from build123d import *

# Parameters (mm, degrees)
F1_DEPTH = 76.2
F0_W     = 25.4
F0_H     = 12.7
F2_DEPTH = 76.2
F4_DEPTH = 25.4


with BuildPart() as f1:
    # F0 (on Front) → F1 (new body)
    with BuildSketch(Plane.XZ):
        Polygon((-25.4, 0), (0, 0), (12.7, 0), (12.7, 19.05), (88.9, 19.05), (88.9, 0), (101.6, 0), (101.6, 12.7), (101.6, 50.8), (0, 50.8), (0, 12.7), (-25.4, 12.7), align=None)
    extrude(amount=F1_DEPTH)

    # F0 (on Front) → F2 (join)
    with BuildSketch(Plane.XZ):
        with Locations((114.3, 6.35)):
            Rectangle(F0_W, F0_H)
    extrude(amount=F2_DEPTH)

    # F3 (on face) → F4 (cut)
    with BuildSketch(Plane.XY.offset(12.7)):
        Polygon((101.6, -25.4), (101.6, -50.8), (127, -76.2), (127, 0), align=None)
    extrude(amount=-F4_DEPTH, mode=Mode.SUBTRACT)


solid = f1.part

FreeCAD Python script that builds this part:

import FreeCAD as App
import Part
import Sketcher
from FreeCAD import Vector
Q = App.Units.Quantity

doc = App.newDocument("Part")
params = doc.addObject("Spreadsheet::Sheet", "Params")
for row, (alias, value) in enumerate([
    ("sketch1_width", "3 in"),
    ("sketch1_width2", "4 in"),
    ("sketch1_width3", "1 in"),
    ("sketch1_width4", "1.5 in"),
    ("sketch1_height", "0.75 in"),
    ("pad1_length", "3 in"),
    ("sketch2_width", "1 in"),
    ("sketch2_height", "0.5 in"),
    ("pad2_length", "3 in"),
    ("sketch3_height", "1 in"),
    ("sketch3_height2", "3 in"),
    ("pocket1_length", "1 in"),
], start=1):
    params.set(f"A{row}", alias)
    params.set(f"B{row}", "=" + value)
    params.setAlias(f"B{row}", alias)

body = doc.addObject("PartDesign::Body", "Body")

sketch1 = body.newObject("Sketcher::SketchObject", "Sketch")
sketch1.AttachmentSupport = (doc.getObject("XZ_Plane"), [""])
sketch1.MapMode = "FlatFace"
sketch1.addGeometry([
    Part.LineSegment(Vector(-25, 0, 0), Vector(13, 0, 0)),
    Part.LineSegment(Vector(13, 0, 0), Vector(13, 19, 0)),
    Part.LineSegment(Vector(13, 19, 0), Vector(89, 19, 0)),
    Part.LineSegment(Vector(89, 19, 0), Vector(89, 0, 0)),
    Part.LineSegment(Vector(89, 0, 0), Vector(102, 0, 0)),
    Part.LineSegment(Vector(102, 0, 0), Vector(102, 51, 0)),
    Part.LineSegment(Vector(102, 51, 0), Vector(0, 51, 0)),
    Part.LineSegment(Vector(0, 51, 0), Vector(0, 13, 0)),
    Part.LineSegment(Vector(0, 13, 0), Vector(-25, 13, 0)),
    Part.LineSegment(Vector(-25, 13, 0), Vector(-25, 0, 0)),
], False)
sketch1.addConstraint([
    Sketcher.Constraint("Coincident", 0, 2, 1, 1),
    Sketcher.Constraint("Coincident", 1, 2, 2, 1),
    Sketcher.Constraint("Coincident", 2, 2, 3, 1),
    Sketcher.Constraint("Coincident", 3, 2, 4, 1),
    Sketcher.Constraint("Coincident", 4, 2, 5, 1),
    Sketcher.Constraint("Coincident", 5, 2, 6, 1),
    Sketcher.Constraint("Coincident", 6, 2, 7, 1),
    Sketcher.Constraint("Coincident", 7, 2, 8, 1),
    Sketcher.Constraint("Coincident", 8, 2, 9, 1),
    Sketcher.Constraint("Coincident", 9, 2, 0, 1),
    Sketcher.Constraint("Horizontal", 0),
    Sketcher.Constraint("Vertical", 1),
    Sketcher.Constraint("Horizontal", 2),
    Sketcher.Constraint("Vertical", 3),
    Sketcher.Constraint("Horizontal", 4),
    Sketcher.Constraint("Vertical", 5),
    Sketcher.Constraint("Horizontal", 6),
    Sketcher.Constraint("Vertical", 7),
    Sketcher.Constraint("Horizontal", 8),
    Sketcher.Constraint("Vertical", 9),
    Sketcher.Constraint("PointOnObject", 0, 2, -1),
    Sketcher.Constraint("PointOnObject", 3, 2, -1),
    Sketcher.Constraint("PointOnObject", 6, 2, -2),
    Sketcher.Constraint("Equal", 0, 7),
    Sketcher.Constraint("Equal", 4, 9),
    Sketcher.Constraint("DistanceX", 2, 1, 2, 2, Q("3 in")),
    Sketcher.Constraint("DistanceX", 6, 2, 6, 1, Q("4 in")),
    Sketcher.Constraint("DistanceX", 8, 2, 8, 1, Q("1 in")),
    Sketcher.Constraint("DistanceX", 0, 1, 0, 2, Q("1.5 in")),
    Sketcher.Constraint("DistanceY", 1, 1, 1, 2, Q("0.75 in")),
])
sketch1.setExpression("Constraints[25]", "Params.sketch1_width")
sketch1.setExpression("Constraints[26]", "Params.sketch1_width2")
sketch1.setExpression("Constraints[27]", "Params.sketch1_width3")
sketch1.setExpression("Constraints[28]", "Params.sketch1_width4")
sketch1.setExpression("Constraints[29]", "Params.sketch1_height")
pad1 = body.newObject("PartDesign::Pad", "Pad")
pad1.Profile = sketch1
pad1.setExpression("Length", "Params.pad1_length")

sketch2 = body.newObject("Sketcher::SketchObject", "Sketch001")
sketch2.AttachmentSupport = (doc.getObject("XZ_Plane"), [""])
sketch2.MapMode = "FlatFace"
sketch2.addGeometry([
    Part.LineSegment(Vector(102, 13, 0), Vector(102, 0, 0)),
    Part.LineSegment(Vector(102, 0, 0), Vector(127, 0, 0)),
    Part.LineSegment(Vector(127, 0, 0), Vector(127, 13, 0)),
    Part.LineSegment(Vector(127, 13, 0), Vector(102, 13, 0)),
], False)
sketch2.addConstraint([
    Sketcher.Constraint("Coincident", 0, 2, 1, 1),
    Sketcher.Constraint("Coincident", 1, 2, 2, 1),
    Sketcher.Constraint("Coincident", 2, 2, 3, 1),
    Sketcher.Constraint("Coincident", 3, 2, 0, 1),
    Sketcher.Constraint("Vertical", 0),
    Sketcher.Constraint("Horizontal", 1),
    Sketcher.Constraint("Vertical", 2),
    Sketcher.Constraint("Horizontal", 3),
    Sketcher.Constraint("PointOnObject", 0, 2, -1),
    Sketcher.Constraint("DistanceX", 1, 1, 1, 2, Q("1 in")),
    Sketcher.Constraint("DistanceY", 0, 2, 0, 1, Q("0.5 in")),
    Sketcher.Constraint("DistanceX", -1, 1, 0, 2, Q("4 in")),
])
sketch2.setExpression("Constraints[9]", "Params.sketch2_width")
sketch2.setExpression("Constraints[10]", "Params.sketch2_height")
pad2 = body.newObject("PartDesign::Pad", "Pad001")
pad2.Profile = sketch2
pad2.setExpression("Length", "Params.pad2_length")

sketch3 = body.newObject("Sketcher::SketchObject", "Sketch002")
sketch3.AttachmentSupport = (doc.getObject("XY_Plane"), [""])
sketch3.MapMode = "FlatFace"
sketch3.AttachmentOffset = App.Placement(Vector(0, 0, 0.5 * 25.4), App.Rotation())
sketch3.addGeometry([
    Part.LineSegment(Vector(102, -25, 0), Vector(102, -51, 0)),
    Part.LineSegment(Vector(102, -51, 0), Vector(127, -76, 0)),
    Part.LineSegment(Vector(127, -76, 0), Vector(127, 0, 0)),
    Part.LineSegment(Vector(127, 0, 0), Vector(102, -25, 0)),
], False)
sketch3.addConstraint([
    Sketcher.Constraint("Coincident", 0, 2, 1, 1),
    Sketcher.Constraint("Coincident", 1, 2, 2, 1),
    Sketcher.Constraint("Coincident", 2, 2, 3, 1),
    Sketcher.Constraint("Coincident", 3, 2, 0, 1),
    Sketcher.Constraint("Vertical", 0),
    Sketcher.Constraint("Vertical", 2),
    Sketcher.Constraint("PointOnObject", 2, 2, -1),
    Sketcher.Constraint("Perpendicular", 1, 3),
    Sketcher.Constraint("Equal", 1, 3),
    Sketcher.Constraint("DistanceY", 0, 2, 0, 1, Q("1 in")),
    Sketcher.Constraint("DistanceY", 2, 1, 2, 2, Q("3 in")),
    Sketcher.Constraint("DistanceX", -1, 1, 0, 2, Q("4 in")),
])
sketch3.setExpression("Constraints[9]", "Params.sketch3_height")
sketch3.setExpression("Constraints[10]", "Params.sketch3_height2")
pocket1 = body.newObject("PartDesign::Pocket", "Pocket")
pocket1.Profile = sketch3
pocket1.setExpression("Length", "Params.pocket1_length")

doc.recompute()
